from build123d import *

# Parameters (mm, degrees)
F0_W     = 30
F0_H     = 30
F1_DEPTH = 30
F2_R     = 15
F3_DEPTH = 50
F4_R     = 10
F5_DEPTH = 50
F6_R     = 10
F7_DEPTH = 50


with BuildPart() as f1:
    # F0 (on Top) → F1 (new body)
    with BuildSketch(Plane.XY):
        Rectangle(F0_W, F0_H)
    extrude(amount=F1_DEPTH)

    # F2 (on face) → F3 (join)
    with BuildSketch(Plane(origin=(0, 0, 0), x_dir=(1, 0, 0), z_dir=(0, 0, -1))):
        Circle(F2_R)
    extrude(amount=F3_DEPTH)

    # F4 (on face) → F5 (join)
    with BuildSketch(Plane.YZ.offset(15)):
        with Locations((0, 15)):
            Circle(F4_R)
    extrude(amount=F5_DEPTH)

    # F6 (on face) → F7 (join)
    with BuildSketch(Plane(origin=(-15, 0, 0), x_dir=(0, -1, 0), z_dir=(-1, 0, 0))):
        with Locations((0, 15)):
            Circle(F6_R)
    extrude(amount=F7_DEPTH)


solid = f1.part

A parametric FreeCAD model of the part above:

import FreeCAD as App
import Part
import Sketcher
from FreeCAD import Vector
Q = App.Units.Quantity

doc = App.newDocument("Part")
body = doc.addObject("PartDesign::Body", "Body")

sketch1 = doc.addObject("Sketcher::SketchObject", "Sketch")
body.addObject(sketch1)
sketch1.AttachmentSupport = (doc.XY_Plane, [""])
sketch1.MapMode = "FlatFace"
sketch1.addGeometry([
    Part.LineSegment(Vector(-15, 15, 0), Vector(-15, -15, 0)),
    Part.LineSegment(Vector(-15, -15, 0), Vector(15, -15, 0)),
    Part.LineSegment(Vector(15, -15, 0), Vector(15, 15, 0)),
    Part.LineSegment(Vector(15, 15, 0), Vector(-15, 15, 0)),
], False)
sketch1.addConstraint([
    Sketcher.Constraint("Coincident", 0, 2, 1, 1),
    Sketcher.Constraint("Coincident", 1, 2, 2, 1),
    Sketcher.Constraint("Coincident", 2, 2, 3, 1),
    Sketcher.Constraint("Coincident", 3, 2, 0, 1),
    Sketcher.Constraint("Vertical", 0),
    Sketcher.Constraint("Horizontal", 1),
    Sketcher.Constraint("Vertical", 2),
    Sketcher.Constraint("Horizontal", 3),
    Sketcher.Constraint("Symmetric", 0, 2, 2, 2, -1, 1),
    Sketcher.Constraint("Equal", 3, 0),
    Sketcher.Constraint("DistanceX", 1, 1, 1, 2, Q("30 mm")),
])
pad1 = doc.addObject("PartDesign::Pad", "Pad")
body.addObject(pad1)
pad1.Profile = sketch1
pad1.Length = 30

sketch2 = doc.addObject("Sketcher::SketchObject", "Sketch001")
body.addObject(sketch2)
sketch2.AttachmentSupport = (doc.XY_Plane, [""])
sketch2.MapMode = "FlatFace"
sketch2.addGeometry(Part.Circle(Vector(0, 0, 0), Vector(0, 0, 1), 15), False)
sketch2.addConstraint([
    Sketcher.Constraint("Coincident", 0, 3, -1, 1),
    Sketcher.Constraint("Diameter", 0, Q("30 mm")),
])
pad2 = doc.addObject("PartDesign::Pad", "Pad001")
body.addObject(pad2)
pad2.Profile = sketch2
pad2.Length = 50
pad2.Reversed = True

sketch3 = doc.addObject("Sketcher::SketchObject", "Sketch002")
body.addObject(sketch3)
sketch3.AttachmentSupport = (doc.YZ_Plane, [""])
sketch3.MapMode = "FlatFace"
sketch3.AttachmentOffset = App.Placement(Vector(0, 0, 15), App.Rotation())
sketch3.addGeometry(Part.Circle(Vector(0, 15, 0), Vector(0, 0, 1), 10), False)
sketch3.addConstraint([
    Sketcher.Constraint("PointOnObject", 0, 3, -2),
    Sketcher.Constraint("Diameter", 0, Q("20 mm")),
    Sketcher.Constraint("DistanceY", -1, 1, 0, 3, Q("15 mm")),
])
pad3 = doc.addObject("PartDesign::Pad", "Pad002")
body.addObject(pad3)
pad3.Profile = sketch3
pad3.Length = 50

sketch4 = doc.addObject("Sketcher::SketchObject", "Sketch003")
body.addObject(sketch4)
sketch4.AttachmentSupport = (doc.YZ_Plane, [""])
sketch4.MapMode = "FlatFace"
sketch4.AttachmentOffset = App.Placement(Vector(0, 0, -15), App.Rotation())
sketch4.addGeometry(Part.Circle(Vector(0, 15, 0), Vector(0, 0, 1), 10), False)
sketch4.addConstraint([
    Sketcher.Constraint("PointOnObject", 0, 3, -2),
    Sketcher.Constraint("Diameter", 0, Q("20 mm")),
    Sketcher.Constraint("DistanceY", -1, 1, 0, 3, Q("15 mm")),
])
pad4 = doc.addObject("PartDesign::Pad", "Pad003")
body.addObject(pad4)
pad4.Profile = sketch4
pad4.Length = 50
pad4.Reversed = True

doc.recompute()
